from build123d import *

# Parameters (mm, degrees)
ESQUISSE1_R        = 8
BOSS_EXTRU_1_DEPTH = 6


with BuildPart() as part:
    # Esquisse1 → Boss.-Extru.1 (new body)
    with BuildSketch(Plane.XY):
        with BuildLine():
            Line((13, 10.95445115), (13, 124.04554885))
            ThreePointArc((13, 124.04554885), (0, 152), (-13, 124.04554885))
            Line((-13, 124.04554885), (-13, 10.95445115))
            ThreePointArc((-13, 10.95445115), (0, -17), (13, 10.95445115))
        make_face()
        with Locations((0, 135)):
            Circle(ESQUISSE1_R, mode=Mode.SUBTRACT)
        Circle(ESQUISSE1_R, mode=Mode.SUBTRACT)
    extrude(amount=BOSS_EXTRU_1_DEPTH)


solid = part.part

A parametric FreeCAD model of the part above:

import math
import FreeCAD as App
import Part
import Sketcher

doc = App.newDocument("Part")
body = doc.addObject("PartDesign::Body", "Body")

sketch1 = body.newObject("Sketcher::SketchObject", "Sketch")
sketch1.AttachmentSupport = (doc.getObject("XY_Plane"), [""])
sketch1.MapMode = "FlatFace"
sketch1.addGeometry([
    Part.LineSegment(App.Vector(13, 11, 0), App.Vector(13, 124, 0)),
    Part.ArcOfCircle(Part.Circle(App.Vector(0, 135, 0), App.Vector(0, 0, 1), 17), math.radians(-40), math.radians(220)),
    Part.LineSegment(App.Vector(-13, 124, 0), App.Vector(-13, 11, 0)),
    Part.ArcOfCircle(Part.Circle(App.Vector(0, 0, 0), App.Vector(0, 0, 1), 17), math.radians(140), math.radians(400)),
    Part.Circle(App.Vector(0, 0, 0), App.Vector(0, 0, 1), 8),
    Part.Circle(App.Vector(0, 135, 0), App.Vector(0, 0, 1), 8),
], False)
sketch1.addConstraint([
    Sketcher.Constraint("Coincident", 0, 2, 1, 1),
    Sketcher.Constraint("Coincident", 1, 2, 2, 1),
    Sketcher.Constraint("Coincident", 2, 2, 3, 1),
    Sketcher.Constraint("Coincident", 3, 2, 0, 1),
    Sketcher.Constraint("Vertical", 0),
    Sketcher.Constraint("Vertical", 2),
    Sketcher.Constraint("Coincident", 3, 3, -1, 1),
    Sketcher.Constraint("Coincident", 4, 3, -1, 1),
    Sketcher.Constraint("Coincident", 5, 3, 1, 3),
    Sketcher.Constraint("Equal", 1, 3),
    Sketcher.Constraint("Equal", 4, 5),
    Sketcher.Constraint("Symmetric", 0, 2, 1, 2, -2),
    Sketcher.Constraint("Diameter", 4, 16.0),
    Sketcher.Constraint("Radius", 1, 17.0),
    Sketcher.Constraint("DistanceY", -1, 1, 1, 3, 135.0),
    Sketcher.Constraint("DistanceX", -1, 1, 0, 2, 13.0),
])
pad1 = body.newObject("PartDesign::Pad", "Pad")
pad1.Profile = sketch1
pad1.Length = 6

doc.recompute()
